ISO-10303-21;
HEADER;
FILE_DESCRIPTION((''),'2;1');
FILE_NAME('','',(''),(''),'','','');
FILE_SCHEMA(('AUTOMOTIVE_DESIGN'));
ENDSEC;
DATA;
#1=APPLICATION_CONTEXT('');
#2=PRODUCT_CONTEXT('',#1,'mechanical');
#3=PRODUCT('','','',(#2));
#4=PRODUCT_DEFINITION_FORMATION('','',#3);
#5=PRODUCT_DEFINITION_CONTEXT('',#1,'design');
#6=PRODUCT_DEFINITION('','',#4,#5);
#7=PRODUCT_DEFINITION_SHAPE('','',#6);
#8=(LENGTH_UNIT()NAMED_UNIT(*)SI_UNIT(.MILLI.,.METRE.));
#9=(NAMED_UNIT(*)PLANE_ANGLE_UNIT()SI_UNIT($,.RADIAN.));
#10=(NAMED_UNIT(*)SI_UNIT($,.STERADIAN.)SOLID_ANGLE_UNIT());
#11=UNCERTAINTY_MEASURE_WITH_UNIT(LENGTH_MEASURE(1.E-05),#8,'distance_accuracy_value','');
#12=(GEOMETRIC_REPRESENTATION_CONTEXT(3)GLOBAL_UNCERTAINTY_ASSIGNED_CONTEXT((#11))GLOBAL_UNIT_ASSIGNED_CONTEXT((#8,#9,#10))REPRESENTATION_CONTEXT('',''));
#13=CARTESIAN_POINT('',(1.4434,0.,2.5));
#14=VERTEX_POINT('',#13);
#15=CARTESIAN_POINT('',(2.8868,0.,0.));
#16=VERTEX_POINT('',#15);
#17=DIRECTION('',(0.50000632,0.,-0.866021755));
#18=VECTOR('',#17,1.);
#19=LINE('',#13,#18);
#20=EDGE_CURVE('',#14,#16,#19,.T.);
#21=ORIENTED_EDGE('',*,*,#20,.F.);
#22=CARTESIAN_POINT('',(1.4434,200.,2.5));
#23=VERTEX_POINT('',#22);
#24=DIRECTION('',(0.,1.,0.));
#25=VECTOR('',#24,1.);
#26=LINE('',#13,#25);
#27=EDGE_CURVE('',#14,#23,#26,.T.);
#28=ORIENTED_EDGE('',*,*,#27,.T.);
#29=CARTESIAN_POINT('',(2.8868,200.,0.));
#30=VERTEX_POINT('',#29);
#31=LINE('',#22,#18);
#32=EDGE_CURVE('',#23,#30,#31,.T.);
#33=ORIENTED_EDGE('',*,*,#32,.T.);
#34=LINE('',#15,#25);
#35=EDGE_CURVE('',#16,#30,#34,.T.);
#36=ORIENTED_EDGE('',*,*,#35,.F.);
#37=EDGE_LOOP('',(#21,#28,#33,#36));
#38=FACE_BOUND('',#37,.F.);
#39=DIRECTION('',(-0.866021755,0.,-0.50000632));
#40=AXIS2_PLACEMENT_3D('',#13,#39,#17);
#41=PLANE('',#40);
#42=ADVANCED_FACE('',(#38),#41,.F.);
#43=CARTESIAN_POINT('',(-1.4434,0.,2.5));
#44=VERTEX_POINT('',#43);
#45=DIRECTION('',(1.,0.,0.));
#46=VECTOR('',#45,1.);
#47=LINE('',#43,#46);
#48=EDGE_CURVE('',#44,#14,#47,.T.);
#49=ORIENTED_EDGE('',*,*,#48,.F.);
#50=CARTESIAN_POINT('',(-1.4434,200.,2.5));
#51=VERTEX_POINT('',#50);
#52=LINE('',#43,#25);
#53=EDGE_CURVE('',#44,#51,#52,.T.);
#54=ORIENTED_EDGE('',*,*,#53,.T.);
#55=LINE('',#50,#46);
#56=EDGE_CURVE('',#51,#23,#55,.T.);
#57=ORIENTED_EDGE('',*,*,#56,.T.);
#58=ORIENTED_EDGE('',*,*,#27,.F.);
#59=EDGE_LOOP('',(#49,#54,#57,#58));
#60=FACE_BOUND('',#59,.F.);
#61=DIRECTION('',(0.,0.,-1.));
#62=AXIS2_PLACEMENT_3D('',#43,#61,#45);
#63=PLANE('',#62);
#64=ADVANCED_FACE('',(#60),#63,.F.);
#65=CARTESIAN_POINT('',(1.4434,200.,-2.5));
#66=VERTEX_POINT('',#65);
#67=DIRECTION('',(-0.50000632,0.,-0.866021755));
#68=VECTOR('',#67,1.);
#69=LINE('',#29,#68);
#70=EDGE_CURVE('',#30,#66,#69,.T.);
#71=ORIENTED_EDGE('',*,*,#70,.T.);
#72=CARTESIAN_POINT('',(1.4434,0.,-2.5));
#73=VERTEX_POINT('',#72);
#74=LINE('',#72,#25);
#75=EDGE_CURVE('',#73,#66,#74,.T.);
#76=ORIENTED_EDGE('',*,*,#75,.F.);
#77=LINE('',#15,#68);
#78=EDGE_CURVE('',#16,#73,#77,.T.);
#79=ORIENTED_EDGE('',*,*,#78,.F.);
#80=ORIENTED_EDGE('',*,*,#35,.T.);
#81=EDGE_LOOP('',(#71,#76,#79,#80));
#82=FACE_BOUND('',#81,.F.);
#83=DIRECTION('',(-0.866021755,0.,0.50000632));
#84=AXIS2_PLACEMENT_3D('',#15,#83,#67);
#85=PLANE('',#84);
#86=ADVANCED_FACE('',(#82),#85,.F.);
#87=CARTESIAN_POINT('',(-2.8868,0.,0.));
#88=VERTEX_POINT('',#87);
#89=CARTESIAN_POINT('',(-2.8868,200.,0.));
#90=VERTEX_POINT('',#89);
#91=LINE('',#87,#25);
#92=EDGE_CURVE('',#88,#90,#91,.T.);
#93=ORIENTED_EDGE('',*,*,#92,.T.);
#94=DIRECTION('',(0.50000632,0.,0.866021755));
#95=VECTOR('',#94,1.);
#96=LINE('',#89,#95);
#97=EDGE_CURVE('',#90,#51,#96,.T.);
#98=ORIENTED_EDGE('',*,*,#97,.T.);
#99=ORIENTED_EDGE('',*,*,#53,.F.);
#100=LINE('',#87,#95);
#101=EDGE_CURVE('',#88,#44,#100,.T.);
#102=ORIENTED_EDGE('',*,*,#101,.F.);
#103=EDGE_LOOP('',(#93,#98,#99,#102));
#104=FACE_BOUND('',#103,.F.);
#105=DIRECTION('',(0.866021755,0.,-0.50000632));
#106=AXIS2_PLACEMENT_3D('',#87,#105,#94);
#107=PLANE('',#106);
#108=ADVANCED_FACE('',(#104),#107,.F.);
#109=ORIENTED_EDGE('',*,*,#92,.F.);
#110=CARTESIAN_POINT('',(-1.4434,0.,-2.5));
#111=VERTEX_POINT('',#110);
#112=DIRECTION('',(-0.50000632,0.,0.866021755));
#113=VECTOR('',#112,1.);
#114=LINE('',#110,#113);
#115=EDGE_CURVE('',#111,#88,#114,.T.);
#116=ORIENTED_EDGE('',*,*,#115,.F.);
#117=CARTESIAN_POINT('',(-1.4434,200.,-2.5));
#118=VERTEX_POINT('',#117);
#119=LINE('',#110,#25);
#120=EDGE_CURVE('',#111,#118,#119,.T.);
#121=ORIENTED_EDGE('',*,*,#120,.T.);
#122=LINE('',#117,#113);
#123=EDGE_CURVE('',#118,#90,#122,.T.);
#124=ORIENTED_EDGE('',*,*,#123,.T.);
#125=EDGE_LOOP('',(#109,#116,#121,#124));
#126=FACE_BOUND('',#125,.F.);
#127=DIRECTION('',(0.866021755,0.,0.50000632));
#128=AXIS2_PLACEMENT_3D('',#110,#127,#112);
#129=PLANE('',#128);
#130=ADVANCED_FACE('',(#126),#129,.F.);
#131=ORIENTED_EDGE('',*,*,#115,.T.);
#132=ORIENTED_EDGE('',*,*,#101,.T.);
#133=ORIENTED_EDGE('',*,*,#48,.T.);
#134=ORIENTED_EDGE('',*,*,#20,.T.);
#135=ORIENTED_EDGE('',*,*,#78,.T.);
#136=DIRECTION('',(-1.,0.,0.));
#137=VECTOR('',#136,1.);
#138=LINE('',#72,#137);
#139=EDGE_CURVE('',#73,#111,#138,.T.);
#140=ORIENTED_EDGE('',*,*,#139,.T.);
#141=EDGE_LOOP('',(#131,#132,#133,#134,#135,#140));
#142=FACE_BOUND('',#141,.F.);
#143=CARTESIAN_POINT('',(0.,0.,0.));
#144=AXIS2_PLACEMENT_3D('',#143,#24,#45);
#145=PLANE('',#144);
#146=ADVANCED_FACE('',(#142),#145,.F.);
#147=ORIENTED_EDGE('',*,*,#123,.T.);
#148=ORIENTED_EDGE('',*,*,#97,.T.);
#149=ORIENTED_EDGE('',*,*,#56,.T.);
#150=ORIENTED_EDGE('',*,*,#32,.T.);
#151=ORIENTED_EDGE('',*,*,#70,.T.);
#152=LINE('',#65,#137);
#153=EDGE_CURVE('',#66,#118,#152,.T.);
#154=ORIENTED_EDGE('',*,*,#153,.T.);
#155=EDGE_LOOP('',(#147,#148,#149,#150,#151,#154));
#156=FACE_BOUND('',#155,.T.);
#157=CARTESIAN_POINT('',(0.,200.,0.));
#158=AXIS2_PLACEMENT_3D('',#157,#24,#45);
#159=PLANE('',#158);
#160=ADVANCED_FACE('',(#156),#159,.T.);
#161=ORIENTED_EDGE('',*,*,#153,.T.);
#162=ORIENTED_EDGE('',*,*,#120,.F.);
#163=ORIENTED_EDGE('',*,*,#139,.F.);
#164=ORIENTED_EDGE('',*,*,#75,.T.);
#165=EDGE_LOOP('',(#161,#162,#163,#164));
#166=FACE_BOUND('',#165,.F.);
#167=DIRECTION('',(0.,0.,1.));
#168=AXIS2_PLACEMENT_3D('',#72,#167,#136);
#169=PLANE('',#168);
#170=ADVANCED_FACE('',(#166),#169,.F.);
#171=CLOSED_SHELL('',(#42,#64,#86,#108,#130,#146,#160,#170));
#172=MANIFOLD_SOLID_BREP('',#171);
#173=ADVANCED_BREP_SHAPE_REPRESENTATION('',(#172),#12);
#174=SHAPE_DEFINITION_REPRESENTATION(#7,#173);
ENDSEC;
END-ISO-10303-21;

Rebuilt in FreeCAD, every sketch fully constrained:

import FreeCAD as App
import Part
import Sketcher
Q = App.Units.Quantity


def add_polygon(sketch, points):
    """Adds a closed chain of lines whose ends are joined by coincident constraints."""
    first, n = sketch.GeometryCount, len(points)
    for a, b in zip(points, points[1:] + points[:1]):
        sketch.addGeometry(Part.LineSegment(App.Vector(*a, 0), App.Vector(*b, 0)), False)
    for i in range(n):
        sketch.addConstraint(Sketcher.Constraint("Coincident", first + i, 2, first + (i + 1) % n, 1))

doc = App.newDocument("Part")
body = doc.addObject("PartDesign::Body", "Body")

sketch1 = doc.addObject("Sketcher::SketchObject", "Sketch")
body.addObject(sketch1)
sketch1.AttachmentSupport = (doc.XZ_Plane, [""])
sketch1.MapMode = "FlatFace"
add_polygon(sketch1, [(1.4434, 2.5), (2.8868, 0), (1.4434, -2.5), (-1.4434, -2.5), (-2.8868, 0), (-1.4434, 2.5)])
sketch1.addConstraint([
    Sketcher.Constraint("Horizontal", 2),
    Sketcher.Constraint("Horizontal", 5),
    Sketcher.Constraint("Symmetric", 0, 2, 3, 2, -1, 1),
    Sketcher.Constraint("Symmetric", 1, 2, 4, 2, -1, 1),
    Sketcher.Constraint("PointOnObject", 0, 2, -1),
    Sketcher.Constraint("Parallel", 0, 3),
    Sketcher.Constraint("Vertical", 2, 2, 4, 2),
    Sketcher.Constraint("DistanceY", 1, 2, -1, 1, Q("2.5 mm")),
    Sketcher.Constraint("Angle", 0, Q("-59.9996 deg")),
    Sketcher.Constraint("DistanceX", 2, 2, 2, 1, Q("2.8868 mm")),
])
pad1 = doc.addObject("PartDesign::Pad", "Pad")
body.addObject(pad1)
pad1.Profile = sketch1
pad1.Length = 200
pad1.Reversed = True

doc.recompute()
